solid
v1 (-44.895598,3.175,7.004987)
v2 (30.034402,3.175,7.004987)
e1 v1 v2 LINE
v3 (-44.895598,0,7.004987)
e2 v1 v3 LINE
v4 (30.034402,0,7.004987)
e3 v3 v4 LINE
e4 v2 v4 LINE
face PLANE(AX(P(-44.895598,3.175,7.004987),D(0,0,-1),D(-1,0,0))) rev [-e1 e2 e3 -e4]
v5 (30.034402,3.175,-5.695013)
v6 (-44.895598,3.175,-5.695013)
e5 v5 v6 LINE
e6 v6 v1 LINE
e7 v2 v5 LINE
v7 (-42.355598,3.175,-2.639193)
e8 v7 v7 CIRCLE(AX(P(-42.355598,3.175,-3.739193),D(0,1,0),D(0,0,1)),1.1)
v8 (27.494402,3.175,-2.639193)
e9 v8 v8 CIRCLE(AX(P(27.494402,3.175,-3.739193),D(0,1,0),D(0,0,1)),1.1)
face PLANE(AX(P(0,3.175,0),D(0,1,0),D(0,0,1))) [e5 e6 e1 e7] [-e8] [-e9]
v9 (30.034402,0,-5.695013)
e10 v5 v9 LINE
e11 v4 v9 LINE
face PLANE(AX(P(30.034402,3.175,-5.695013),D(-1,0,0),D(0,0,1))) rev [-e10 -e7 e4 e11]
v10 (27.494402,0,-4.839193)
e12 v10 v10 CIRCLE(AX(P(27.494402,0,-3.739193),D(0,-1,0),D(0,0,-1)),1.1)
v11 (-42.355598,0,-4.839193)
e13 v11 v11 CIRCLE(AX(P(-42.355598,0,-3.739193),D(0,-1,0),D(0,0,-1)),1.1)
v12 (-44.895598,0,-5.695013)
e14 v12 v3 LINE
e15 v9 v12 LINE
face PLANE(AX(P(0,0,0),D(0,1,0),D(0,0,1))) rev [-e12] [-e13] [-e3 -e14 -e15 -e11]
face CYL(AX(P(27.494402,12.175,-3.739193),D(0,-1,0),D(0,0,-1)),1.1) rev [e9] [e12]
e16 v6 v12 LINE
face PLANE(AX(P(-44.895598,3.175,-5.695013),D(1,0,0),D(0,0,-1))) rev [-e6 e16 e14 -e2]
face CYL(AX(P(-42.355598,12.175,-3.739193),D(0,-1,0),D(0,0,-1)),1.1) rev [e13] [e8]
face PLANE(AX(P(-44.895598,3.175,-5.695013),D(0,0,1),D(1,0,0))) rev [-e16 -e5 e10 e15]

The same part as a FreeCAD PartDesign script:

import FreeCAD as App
import Part
import Sketcher

V = App.Vector
Q = App.Units.Quantity

doc = App.newDocument("Part")
body = doc.addObject("PartDesign::Body", "Body")

# Sketch on XZ plane
sketch1 = body.newObject("Sketcher::SketchObject", "Sketch")
sketch1.AttachmentSupport = (doc.getObject("XZ_Plane"), [""])
sketch1.MapMode = "FlatFace"
sketch1.addGeometry([
    Part.LineSegment(V(-45, -6, 0), V(-45, 7, 0)),
    Part.LineSegment(V(-45, 7, 0), V(30, 7, 0)),
    Part.LineSegment(V(30, 7, 0), V(30, -6, 0)),
    Part.LineSegment(V(30, -6, 0), V(-45, -6, 0)),
], False)
sketch1.addConstraint([
    Sketcher.Constraint("Coincident", 0, 2, 1, 1),
    Sketcher.Constraint("Coincident", 1, 2, 2, 1),
    Sketcher.Constraint("Coincident", 2, 2, 3, 1),
    Sketcher.Constraint("Coincident", 3, 2, 0, 1),
    Sketcher.Constraint("Vertical", 0),
    Sketcher.Constraint("Horizontal", 1),
    Sketcher.Constraint("Vertical", 2),
    Sketcher.Constraint("Horizontal", 3),
    Sketcher.Constraint("DistanceY", 0, 1, 0, 2, Q("0.5 in")),
    Sketcher.Constraint("DistanceX", 1, 1, 1, 2, Q("2.95 in")),
    Sketcher.Constraint("DistanceX", 0, 2, -1, 1, 44.895598),
    Sketcher.Constraint("DistanceY", -1, 1, 0, 2, 7.004987),
])
pad1 = body.newObject("PartDesign::Pad", "Pad")
pad1.Profile = sketch1
pad1.Length = Q("0.125 in")
pad1.Reversed = True

# Sketch on XZ plane
sketch2 = body.newObject("Sketcher::SketchObject", "Sketch001")
sketch2.AttachmentSupport = (doc.getObject("XZ_Plane"), [""])
sketch2.MapMode = "FlatFace"
sketch2.addGeometry([
    Part.Circle(V(27.5, -3.7, 0), V(0, 0, 1), 1.1),
    Part.Circle(V(-42.4, -3.7, 0), V(0, 0, 1), 1.1),
], False)
sketch2.addConstraint([
    Sketcher.Constraint("Equal", 0, 1),
    Sketcher.Constraint("Horizontal", 0, 3, 1, 3),
    Sketcher.Constraint("Diameter", 0, 2.2),
    Sketcher.Constraint("DistanceX", 1, 3, 0, 3, Q("2.75 in")),
    Sketcher.Constraint("DistanceX", -1, 1, 0, 3, 27.494402),
    Sketcher.Constraint("DistanceY", 0, 3, -1, 1, 3.739193),
])
pocket1 = body.newObject("PartDesign::Pocket", "Pocket")
pocket1.Profile = sketch2
pocket1.Length = 12.175

doc.recompute()
